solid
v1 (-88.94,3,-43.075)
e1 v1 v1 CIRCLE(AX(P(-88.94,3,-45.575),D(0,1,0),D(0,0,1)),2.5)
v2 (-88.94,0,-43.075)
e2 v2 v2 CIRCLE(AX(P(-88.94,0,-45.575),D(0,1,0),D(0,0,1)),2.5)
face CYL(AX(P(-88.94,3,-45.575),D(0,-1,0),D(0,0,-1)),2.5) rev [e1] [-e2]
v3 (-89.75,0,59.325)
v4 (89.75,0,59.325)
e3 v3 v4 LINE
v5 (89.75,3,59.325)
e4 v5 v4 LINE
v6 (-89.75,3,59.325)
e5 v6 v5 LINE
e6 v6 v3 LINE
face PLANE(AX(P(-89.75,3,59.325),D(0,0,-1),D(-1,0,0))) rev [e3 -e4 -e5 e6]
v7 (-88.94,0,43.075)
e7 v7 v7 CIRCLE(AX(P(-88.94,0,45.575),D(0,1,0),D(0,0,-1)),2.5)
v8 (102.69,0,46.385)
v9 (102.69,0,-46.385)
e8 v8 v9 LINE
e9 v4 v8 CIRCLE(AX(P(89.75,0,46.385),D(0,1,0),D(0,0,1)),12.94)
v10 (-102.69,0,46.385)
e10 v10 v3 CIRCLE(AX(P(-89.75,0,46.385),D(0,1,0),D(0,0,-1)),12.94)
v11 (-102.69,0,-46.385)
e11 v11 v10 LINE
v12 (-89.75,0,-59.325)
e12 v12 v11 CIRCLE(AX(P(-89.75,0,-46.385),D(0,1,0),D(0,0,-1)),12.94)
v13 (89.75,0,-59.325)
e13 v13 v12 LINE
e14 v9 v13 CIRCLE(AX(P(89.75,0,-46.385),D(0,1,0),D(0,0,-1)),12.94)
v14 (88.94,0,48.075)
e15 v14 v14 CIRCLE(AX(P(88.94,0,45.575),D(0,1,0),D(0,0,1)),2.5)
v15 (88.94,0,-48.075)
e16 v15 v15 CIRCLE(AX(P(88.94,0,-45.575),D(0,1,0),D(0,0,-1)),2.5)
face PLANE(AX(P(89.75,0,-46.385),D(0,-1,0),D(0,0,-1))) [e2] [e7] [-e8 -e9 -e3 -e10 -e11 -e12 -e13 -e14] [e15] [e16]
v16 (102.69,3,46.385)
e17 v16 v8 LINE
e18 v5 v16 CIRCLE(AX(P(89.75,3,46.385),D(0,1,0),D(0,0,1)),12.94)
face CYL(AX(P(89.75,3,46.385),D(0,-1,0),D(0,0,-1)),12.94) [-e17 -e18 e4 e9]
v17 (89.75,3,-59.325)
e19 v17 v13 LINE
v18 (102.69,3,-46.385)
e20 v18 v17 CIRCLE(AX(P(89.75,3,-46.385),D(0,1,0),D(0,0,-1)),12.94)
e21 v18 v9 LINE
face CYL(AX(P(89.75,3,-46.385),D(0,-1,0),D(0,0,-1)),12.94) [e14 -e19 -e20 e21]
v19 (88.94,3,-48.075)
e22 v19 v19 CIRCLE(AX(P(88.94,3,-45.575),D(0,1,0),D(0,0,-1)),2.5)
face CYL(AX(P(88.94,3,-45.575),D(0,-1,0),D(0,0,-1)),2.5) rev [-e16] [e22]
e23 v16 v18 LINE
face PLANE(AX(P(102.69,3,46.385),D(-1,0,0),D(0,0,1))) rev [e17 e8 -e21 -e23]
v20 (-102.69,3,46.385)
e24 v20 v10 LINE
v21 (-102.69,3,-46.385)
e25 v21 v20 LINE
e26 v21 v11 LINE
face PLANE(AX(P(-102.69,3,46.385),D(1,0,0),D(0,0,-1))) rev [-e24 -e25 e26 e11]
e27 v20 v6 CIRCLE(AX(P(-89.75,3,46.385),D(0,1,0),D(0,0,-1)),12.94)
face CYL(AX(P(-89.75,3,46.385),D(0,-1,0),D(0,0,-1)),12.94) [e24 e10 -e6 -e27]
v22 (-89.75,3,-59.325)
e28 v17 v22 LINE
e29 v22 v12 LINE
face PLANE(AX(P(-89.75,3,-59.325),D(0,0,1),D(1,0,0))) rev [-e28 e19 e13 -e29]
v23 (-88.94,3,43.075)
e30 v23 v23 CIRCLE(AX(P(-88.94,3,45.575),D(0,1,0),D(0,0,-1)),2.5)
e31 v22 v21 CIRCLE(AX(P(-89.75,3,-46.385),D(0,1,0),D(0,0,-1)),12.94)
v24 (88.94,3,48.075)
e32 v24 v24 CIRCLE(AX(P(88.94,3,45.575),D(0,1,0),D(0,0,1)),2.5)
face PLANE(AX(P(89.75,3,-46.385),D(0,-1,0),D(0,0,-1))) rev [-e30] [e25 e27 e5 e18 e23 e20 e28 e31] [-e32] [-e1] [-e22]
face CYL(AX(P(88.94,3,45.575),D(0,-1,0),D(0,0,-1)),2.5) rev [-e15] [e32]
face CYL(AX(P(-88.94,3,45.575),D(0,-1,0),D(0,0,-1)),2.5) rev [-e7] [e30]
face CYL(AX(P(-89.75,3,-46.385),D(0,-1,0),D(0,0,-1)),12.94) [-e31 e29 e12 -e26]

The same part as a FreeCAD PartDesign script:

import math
import FreeCAD as App
import Part
import Sketcher

V = App.Vector

doc = App.newDocument("Part")
body = doc.addObject("PartDesign::Body", "Body")

# Sketch on XZ plane
sketch1 = doc.addObject("Sketcher::SketchObject", "Sketch")
body.addObject(sketch1)
sketch1.AttachmentSupport = (doc.XZ_Plane, [""])
sketch1.MapMode = "FlatFace"
sketch1.addGeometry(Part.LineSegment(V(-89.8, 59.3, 0), V(89.8, 59.3, 0)), False)
sketch1.addGeometry(Part.ArcOfCircle(Part.Circle(V(89.8, 46.4, 0), V(0, 0, 1), 12.9), math.radians(0), math.radians(90)), False)
sketch1.addGeometry(Part.LineSegment(V(102.7, 46.4, 0), V(102.7, -46.4, 0)), False)
sketch1.addGeometry(Part.ArcOfCircle(Part.Circle(V(89.8, -46.4, 0), V(0, 0, 1), 12.9), math.radians(-90), math.radians(0)), False)
sketch1.addGeometry(Part.LineSegment(V(89.8, -59.3, 0), V(-89.8, -59.3, 0)), False)
sketch1.addGeometry(Part.ArcOfCircle(Part.Circle(V(-89.8, -46.4, 0), V(0, 0, 1), 12.9), math.radians(180), math.radians(270)), False)
sketch1.addGeometry(Part.LineSegment(V(-102.7, -46.4, 0), V(-102.7, 46.4, 0)), False)
sketch1.addGeometry(Part.ArcOfCircle(Part.Circle(V(-89.8, 46.4, 0), V(0, 0, 1), 12.9), math.radians(90), math.radians(180)), False)
sketch1.addGeometry(Part.Circle(V(-88.9, 45.6, 0), V(0, 0, 1), 2.5), False)
sketch1.addGeometry(Part.Circle(V(88.9, 45.6, 0), V(0, 0, 1), 2.5), False)
sketch1.addGeometry(Part.Circle(V(-88.9, -45.6, 0), V(0, 0, 1), 2.5), False)
sketch1.addGeometry(Part.Circle(V(88.9, -45.6, 0), V(0, 0, 1), 2.5), False)
sketch1.addConstraint(Sketcher.Constraint("Tangent", 0, 2, 1, 2))
sketch1.addConstraint(Sketcher.Constraint("Tangent", 1, 1, 2, 1))
sketch1.addConstraint(Sketcher.Constraint("Tangent", 2, 2, 3, 2))
sketch1.addConstraint(Sketcher.Constraint("Tangent", 3, 1, 4, 1))
sketch1.addConstraint(Sketcher.Constraint("Tangent", 4, 2, 5, 2))
sketch1.addConstraint(Sketcher.Constraint("Tangent", 5, 1, 6, 1))
sketch1.addConstraint(Sketcher.Constraint("Tangent", 6, 2, 7, 2))
sketch1.addConstraint(Sketcher.Constraint("Tangent", 7, 1, 0, 1))
sketch1.addConstraint(Sketcher.Constraint("Horizontal", 0))
sketch1.addConstraint(Sketcher.Constraint("Vertical", 2))
sketch1.addConstraint(Sketcher.Constraint("Horizontal", 4))
sketch1.addConstraint(Sketcher.Constraint("Vertical", 6))
sketch1.addConstraint(Sketcher.Constraint("Equal", 1, 3))
sketch1.addConstraint(Sketcher.Constraint("Equal", 3, 5))
sketch1.addConstraint(Sketcher.Constraint("Equal", 5, 7))
sketch1.addConstraint(Sketcher.Constraint("Equal", 8, 9))
sketch1.addConstraint(Sketcher.Constraint("Equal", 9, 10))
sketch1.addConstraint(Sketcher.Constraint("Equal", 10, 11))
sketch1.addConstraint(Sketcher.Constraint("Symmetric", 1, 3, 5, 3, -1, 1))
sketch1.addConstraint(Sketcher.Constraint("Symmetric", 9, 3, 10, 3, -1, 1))
sketch1.addConstraint(Sketcher.Constraint("Symmetric", 8, 3, 11, 3, -1, 1))
sketch1.addConstraint(Sketcher.Constraint("Symmetric", 8, 3, 9, 3, -2))
sketch1.addConstraint(Sketcher.Constraint("Diameter", 8, 5.0))
sketch1.addConstraint(Sketcher.Constraint("Radius", 1, 12.94))
sketch1.addConstraint(Sketcher.Constraint("DistanceX", 0, 1, 0, 2, 179.5))
sketch1.addConstraint(Sketcher.Constraint("DistanceY", 2, 2, 2, 1, 92.77))
sketch1.addConstraint(Sketcher.Constraint("DistanceY", 11, 3, 0, 2, 104.9))
sketch1.addConstraint(Sketcher.Constraint("DistanceX", 8, 3, -1, 1, 88.94))
pad1 = doc.addObject("PartDesign::Pad", "Pad")
body.addObject(pad1)
pad1.Profile = sketch1
pad1.Length = 3
pad1.Reversed = True

doc.recompute()
